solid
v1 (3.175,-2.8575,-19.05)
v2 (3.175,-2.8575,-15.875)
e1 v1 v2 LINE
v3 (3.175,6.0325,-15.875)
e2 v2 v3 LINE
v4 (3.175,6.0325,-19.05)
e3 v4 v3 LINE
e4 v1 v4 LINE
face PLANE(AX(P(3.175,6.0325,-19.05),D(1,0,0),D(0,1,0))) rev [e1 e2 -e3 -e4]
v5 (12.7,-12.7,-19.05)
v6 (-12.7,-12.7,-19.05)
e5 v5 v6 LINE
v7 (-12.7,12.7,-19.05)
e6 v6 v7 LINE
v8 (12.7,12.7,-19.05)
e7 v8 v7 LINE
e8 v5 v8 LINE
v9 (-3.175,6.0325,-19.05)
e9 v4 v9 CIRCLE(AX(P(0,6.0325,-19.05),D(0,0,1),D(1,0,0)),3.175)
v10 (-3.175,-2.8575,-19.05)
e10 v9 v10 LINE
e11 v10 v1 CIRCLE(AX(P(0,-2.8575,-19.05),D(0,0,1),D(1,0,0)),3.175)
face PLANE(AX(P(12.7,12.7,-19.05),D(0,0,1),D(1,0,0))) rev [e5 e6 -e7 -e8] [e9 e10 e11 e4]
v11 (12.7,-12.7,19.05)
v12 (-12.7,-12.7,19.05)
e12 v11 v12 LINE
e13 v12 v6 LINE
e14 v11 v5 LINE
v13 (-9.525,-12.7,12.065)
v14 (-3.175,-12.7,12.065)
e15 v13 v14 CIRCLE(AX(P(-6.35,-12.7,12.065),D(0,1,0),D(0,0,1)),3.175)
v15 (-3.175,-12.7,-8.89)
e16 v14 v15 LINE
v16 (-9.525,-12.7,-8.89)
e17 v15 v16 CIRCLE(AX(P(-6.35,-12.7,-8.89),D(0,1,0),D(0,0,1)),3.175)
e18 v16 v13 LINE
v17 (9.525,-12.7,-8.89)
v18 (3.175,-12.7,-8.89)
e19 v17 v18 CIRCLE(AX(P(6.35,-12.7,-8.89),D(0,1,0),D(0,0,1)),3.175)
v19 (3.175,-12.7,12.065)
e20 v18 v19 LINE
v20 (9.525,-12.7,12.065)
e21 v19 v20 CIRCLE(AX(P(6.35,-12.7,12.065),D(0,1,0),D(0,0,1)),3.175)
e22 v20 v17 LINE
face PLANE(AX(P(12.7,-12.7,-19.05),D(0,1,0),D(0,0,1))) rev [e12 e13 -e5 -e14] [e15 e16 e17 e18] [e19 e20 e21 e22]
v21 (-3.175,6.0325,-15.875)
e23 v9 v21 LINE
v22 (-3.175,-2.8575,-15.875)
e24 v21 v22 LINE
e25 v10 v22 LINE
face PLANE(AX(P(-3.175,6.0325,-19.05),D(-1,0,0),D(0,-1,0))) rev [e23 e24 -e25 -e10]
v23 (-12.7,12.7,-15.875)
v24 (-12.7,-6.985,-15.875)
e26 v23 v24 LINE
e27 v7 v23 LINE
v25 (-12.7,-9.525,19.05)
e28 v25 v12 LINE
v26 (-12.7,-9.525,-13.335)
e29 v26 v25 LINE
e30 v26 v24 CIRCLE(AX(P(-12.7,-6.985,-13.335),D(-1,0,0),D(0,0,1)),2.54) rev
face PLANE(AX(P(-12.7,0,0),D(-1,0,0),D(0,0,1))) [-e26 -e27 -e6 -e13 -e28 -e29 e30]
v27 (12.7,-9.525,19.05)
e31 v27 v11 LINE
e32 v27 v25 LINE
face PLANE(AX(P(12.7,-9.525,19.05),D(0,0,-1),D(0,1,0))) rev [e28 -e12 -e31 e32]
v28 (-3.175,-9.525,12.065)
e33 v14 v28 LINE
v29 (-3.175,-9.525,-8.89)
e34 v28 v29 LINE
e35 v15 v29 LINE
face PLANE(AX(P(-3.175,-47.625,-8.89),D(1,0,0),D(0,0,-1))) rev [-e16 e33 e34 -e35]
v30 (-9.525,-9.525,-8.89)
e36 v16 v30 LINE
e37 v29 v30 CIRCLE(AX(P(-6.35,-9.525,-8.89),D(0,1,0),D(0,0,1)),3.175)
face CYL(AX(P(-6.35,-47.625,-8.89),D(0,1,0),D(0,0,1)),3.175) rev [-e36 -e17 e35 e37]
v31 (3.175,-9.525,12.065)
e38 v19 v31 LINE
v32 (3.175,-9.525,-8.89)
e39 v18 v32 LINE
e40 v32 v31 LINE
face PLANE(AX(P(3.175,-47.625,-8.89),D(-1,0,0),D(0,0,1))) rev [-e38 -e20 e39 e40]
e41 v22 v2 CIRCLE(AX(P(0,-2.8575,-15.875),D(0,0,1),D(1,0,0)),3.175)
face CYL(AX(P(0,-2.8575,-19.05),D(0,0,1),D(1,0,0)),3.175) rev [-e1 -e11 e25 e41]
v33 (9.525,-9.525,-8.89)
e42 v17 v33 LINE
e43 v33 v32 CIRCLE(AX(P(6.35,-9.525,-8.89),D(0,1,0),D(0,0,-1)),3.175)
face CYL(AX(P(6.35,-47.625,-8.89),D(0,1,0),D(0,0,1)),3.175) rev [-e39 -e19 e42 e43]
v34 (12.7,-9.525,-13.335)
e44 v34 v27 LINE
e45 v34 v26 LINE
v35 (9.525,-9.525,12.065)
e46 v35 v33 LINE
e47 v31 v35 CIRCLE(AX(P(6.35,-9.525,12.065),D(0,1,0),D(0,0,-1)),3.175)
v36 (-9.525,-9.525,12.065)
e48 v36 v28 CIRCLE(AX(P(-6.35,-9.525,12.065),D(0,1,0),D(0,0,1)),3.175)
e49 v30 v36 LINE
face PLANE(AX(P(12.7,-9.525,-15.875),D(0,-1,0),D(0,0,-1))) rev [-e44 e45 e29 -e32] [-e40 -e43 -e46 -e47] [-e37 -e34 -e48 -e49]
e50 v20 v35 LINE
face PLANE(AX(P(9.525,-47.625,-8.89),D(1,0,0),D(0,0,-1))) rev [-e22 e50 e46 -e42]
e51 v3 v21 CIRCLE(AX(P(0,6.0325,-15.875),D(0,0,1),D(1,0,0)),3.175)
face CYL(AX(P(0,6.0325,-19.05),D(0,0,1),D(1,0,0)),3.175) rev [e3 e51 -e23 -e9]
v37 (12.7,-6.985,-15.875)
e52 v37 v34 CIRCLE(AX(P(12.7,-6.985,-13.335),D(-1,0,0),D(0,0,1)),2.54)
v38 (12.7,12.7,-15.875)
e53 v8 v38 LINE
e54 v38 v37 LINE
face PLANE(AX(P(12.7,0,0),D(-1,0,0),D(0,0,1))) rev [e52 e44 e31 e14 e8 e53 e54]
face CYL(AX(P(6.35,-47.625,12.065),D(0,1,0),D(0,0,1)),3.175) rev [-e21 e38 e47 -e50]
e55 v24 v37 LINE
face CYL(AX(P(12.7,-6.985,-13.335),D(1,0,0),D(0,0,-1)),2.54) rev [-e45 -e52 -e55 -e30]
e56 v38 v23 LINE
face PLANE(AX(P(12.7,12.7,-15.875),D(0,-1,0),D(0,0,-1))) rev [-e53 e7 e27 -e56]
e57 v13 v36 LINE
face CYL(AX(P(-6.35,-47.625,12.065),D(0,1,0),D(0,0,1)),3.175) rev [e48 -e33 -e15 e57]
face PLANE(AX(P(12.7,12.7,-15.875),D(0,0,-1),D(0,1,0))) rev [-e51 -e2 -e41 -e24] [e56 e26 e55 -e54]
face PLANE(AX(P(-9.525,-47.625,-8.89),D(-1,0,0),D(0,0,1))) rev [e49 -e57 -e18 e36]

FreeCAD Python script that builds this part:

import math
import FreeCAD as App
import Part
import Sketcher
Q = App.Units.Quantity


def edges_at(feature, points):
    """Names of the edges that pass closest to the given points."""
    edges = feature.Shape.Edges
    near = lambda p: min(range(len(edges)), key=lambda i: edges[i].distToShape(Part.Vertex(*p))[0])
    return sorted({f"Edge{near(p) + 1}" for p in points})


def add_polygon(sketch, points):
    """Adds a closed chain of lines whose ends are joined by coincident constraints."""
    first, n = sketch.GeometryCount, len(points)
    for a, b in zip(points, points[1:] + points[:1]):
        sketch.addGeometry(Part.LineSegment(App.Vector(*a, 0), App.Vector(*b, 0)), False)
    for i in range(n):
        sketch.addConstraint(Sketcher.Constraint("Coincident", first + i, 2, first + (i + 1) % n, 1))

doc = App.newDocument("Part")
body = doc.addObject("PartDesign::Body", "Body")

sketch1 = doc.addObject("Sketcher::SketchObject", "Sketch")
body.addObject(sketch1)
sketch1.AttachmentSupport = (doc.YZ_Plane, [""])
sketch1.MapMode = "FlatFace"
add_polygon(sketch1, [(-9.525, -15.875), (-9.525, 19.05), (-12.7, 19.05), (-12.7, -19.05), (12.7, -19.05), (12.7, -15.875)])
sketch1.addConstraint([
    Sketcher.Constraint("Vertical", 0),
    Sketcher.Constraint("Horizontal", 1),
    Sketcher.Constraint("Vertical", 2),
    Sketcher.Constraint("Horizontal", 3),
    Sketcher.Constraint("Vertical", 4),
    Sketcher.Constraint("Horizontal", 5),
    Sketcher.Constraint("Symmetric", 1, 2, 3, 2, -1, 1),
    Sketcher.Constraint("Equal", 1, 4),
    Sketcher.Constraint("DistanceX", 3, 1, 3, 2, Q("1 in")),
    Sketcher.Constraint("DistanceY", 2, 2, 2, 1, Q("1.5 in")),
    Sketcher.Constraint("DistanceX", 1, 2, 1, 1, Q("0.125 in")),
])
pad1 = doc.addObject("PartDesign::Pad", "Pad")
body.addObject(pad1)
pad1.Profile = sketch1
pad1.Type = "TwoLengths"
pad1.Length = Q("0.5 in")
pad1.Length2 = Q("0.5 in")

sketch2 = doc.addObject("Sketcher::SketchObject", "Sketch001")
body.addObject(sketch2)
sketch2.AttachmentSupport = (doc.XY_Plane, [""])
sketch2.MapMode = "FlatFace"
sketch2.AttachmentOffset = App.Placement(App.Vector(0, 0, -0.625 * 25.4), App.Rotation())
sketch2.addGeometry([
    Part.LineSegment(App.Vector(-3.175, 6.0325, 0), App.Vector(-3.175, -2.8575, 0)),
    Part.ArcOfCircle(Part.Circle(App.Vector(0, -2.8575, 0), App.Vector(0, 0, 1), 3.175), math.radians(180), math.radians(360)),
    Part.LineSegment(App.Vector(3.175, -2.8575, 0), App.Vector(3.175, 6.0325, 0)),
    Part.ArcOfCircle(Part.Circle(App.Vector(0, 6.0325, 0), App.Vector(0, 0, 1), 3.175), math.radians(0), math.radians(180)),
], False)
sketch2.addConstraint([
    Sketcher.Constraint("Tangent", 0, 2, 1, 1),
    Sketcher.Constraint("Tangent", 1, 2, 2, 1),
    Sketcher.Constraint("Tangent", 2, 2, 3, 1),
    Sketcher.Constraint("Tangent", 3, 2, 0, 1),
    Sketcher.Constraint("Vertical", 0),
    Sketcher.Constraint("Vertical", 2),
    Sketcher.Constraint("PointOnObject", 1, 3, -2),
    Sketcher.Constraint("Radius", 1, Q("0.125 in")),
    Sketcher.Constraint("DistanceY", 0, 2, 0, 1, Q("0.35 in")),
    Sketcher.Constraint("DistanceY", 1, 3, -1, 1, Q("0.1125 in")),
])
pocket1 = doc.addObject("PartDesign::Pocket", "Pocket")
body.addObject(pocket1)
pocket1.Profile = sketch2
pocket1.Type = "ThroughAll"

sketch3 = doc.addObject("Sketcher::SketchObject", "Sketch002")
body.addObject(sketch3)
sketch3.AttachmentSupport = (doc.XZ_Plane, [""])
sketch3.MapMode = "FlatFace"
sketch3.AttachmentOffset = App.Placement(App.Vector(0, 0, 0.375 * 25.4), App.Rotation())
sketch3.addGeometry([
    Part.LineSegment(App.Vector(-3.175, 12.065, 0), App.Vector(-3.175, -8.89, 0)),
    Part.ArcOfCircle(Part.Circle(App.Vector(-6.35, -8.89, 0), App.Vector(0, 0, 1), 3.175), math.radians(180), math.radians(360)),
    Part.LineSegment(App.Vector(-9.525, -8.89, 0), App.Vector(-9.525, 12.065, 0)),
    Part.ArcOfCircle(Part.Circle(App.Vector(-6.35, 12.065, 0), App.Vector(0, 0, 1), 3.175), math.radians(0), math.radians(180)),
    Part.LineSegment(App.Vector(3.175, -8.89, 0), App.Vector(3.175, 12.065, 0)),
    Part.ArcOfCircle(Part.Circle(App.Vector(6.35, 12.065, 0), App.Vector(0, 0, 1), 3.175), math.radians(0), math.radians(180)),
    Part.LineSegment(App.Vector(9.525, 12.065, 0), App.Vector(9.525, -8.89, 0)),
    Part.ArcOfCircle(Part.Circle(App.Vector(6.35, -8.89, 0), App.Vector(0, 0, 1), 3.175), math.radians(180), math.radians(360)),
], False)
sketch3.addConstraint([
    Sketcher.Constraint("Tangent", 0, 2, 1, 2),
    Sketcher.Constraint("Tangent", 1, 1, 2, 1),
    Sketcher.Constraint("Tangent", 2, 2, 3, 2),
    Sketcher.Constraint("Tangent", 3, 1, 0, 1),
    Sketcher.Constraint("Tangent", 4, 2, 5, 2),
    Sketcher.Constraint("Tangent", 5, 1, 6, 1),
    Sketcher.Constraint("Tangent", 6, 2, 7, 2),
    Sketcher.Constraint("Tangent", 7, 1, 4, 1),
    Sketcher.Constraint("Vertical", 0),
    Sketcher.Constraint("Vertical", 2),
    Sketcher.Constraint("Vertical", 4),
    Sketcher.Constraint("Vertical", 6),
    Sketcher.Constraint("Equal", 3, 5),
    Sketcher.Constraint("Symmetric", 3, 3, 5, 3, -2),
    Sketcher.Constraint("Horizontal", 1, 3, 7, 3),
    Sketcher.Constraint("Radius", 1, Q("0.125 in")),
    Sketcher.Constraint("DistanceX", 3, 3, 5, 3, Q("0.5 in")),
    Sketcher.Constraint("DistanceY", 0, 2, 0, 1, Q("0.825 in")),
    Sketcher.Constraint("DistanceY", 1, 3, -1, 1, Q("0.35 in")),
])
pocket2 = doc.addObject("PartDesign::Pocket", "Pocket001")
body.addObject(pocket2)
pocket2.Profile = sketch3
pocket2.Length = Q("1.5 in")
pocket2.Reversed = True
doc.recompute()

fillet = doc.addObject("PartDesign::Fillet", "Fillet")
body.addObject(fillet)
fillet.Base = (pocket2, edges_at(pocket2, [(0, -9.525, -15.875)]))
fillet.Radius = Q("0.1 in")

doc.recompute()
